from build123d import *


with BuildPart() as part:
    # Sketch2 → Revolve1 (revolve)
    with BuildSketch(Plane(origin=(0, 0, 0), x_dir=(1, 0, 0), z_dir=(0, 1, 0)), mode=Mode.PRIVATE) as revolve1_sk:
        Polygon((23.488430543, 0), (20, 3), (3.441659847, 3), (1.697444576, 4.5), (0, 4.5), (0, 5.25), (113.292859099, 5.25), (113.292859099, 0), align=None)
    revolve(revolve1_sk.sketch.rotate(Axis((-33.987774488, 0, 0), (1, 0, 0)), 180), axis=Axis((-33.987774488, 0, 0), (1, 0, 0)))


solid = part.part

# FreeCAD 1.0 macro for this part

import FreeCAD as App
import Part
import Sketcher
from FreeCAD import Vector

doc = App.newDocument("Part")
body = doc.addObject("PartDesign::Body", "Body")

# Sketch on XZ plane
sketch1 = body.newObject("Sketcher::SketchObject", "Sketch")
sketch1.AttachmentSupport = (doc.getObject("XZ_Plane"), [""])
sketch1.MapMode = "FlatFace"
sketch1.addGeometry(Part.LineSegment(Vector(20, -3, 0), Vector(23.488431, 0, 0)), False)
sketch1.addGeometry(Part.LineSegment(Vector(23.488431, 0, 0), Vector(113.292859, 0, 0)), False)
sketch1.addGeometry(Part.LineSegment(Vector(113.292859, 0, 0), Vector(113.292859, -5.25, 0)), False)
sketch1.addGeometry(Part.LineSegment(Vector(113.292859, -5.25, 0), Vector(0, -5.25, 0)), False)
sketch1.addGeometry(Part.LineSegment(Vector(0, -5.25, 0), Vector(0, -4.5, 0)), False)
sketch1.addGeometry(Part.LineSegment(Vector(0, -4.5, 0), Vector(1.697445, -4.5, 0)), False)
sketch1.addGeometry(Part.LineSegment(Vector(1.697445, -4.5, 0), Vector(3.44166, -3, 0)), False)
sketch1.addGeometry(Part.LineSegment(Vector(3.44166, -3, 0), Vector(20, -3, 0)), False)
sketch1.addConstraint(Sketcher.Constraint("Coincident", 0, 2, 1, 1))
sketch1.addConstraint(Sketcher.Constraint("Coincident", 1, 2, 2, 1))
sketch1.addConstraint(Sketcher.Constraint("Coincident", 2, 2, 3, 1))
sketch1.addConstraint(Sketcher.Constraint("Coincident", 3, 2, 4, 1))
sketch1.addConstraint(Sketcher.Constraint("Coincident", 4, 2, 5, 1))
sketch1.addConstraint(Sketcher.Constraint("Coincident", 5, 2, 6, 1))
sketch1.addConstraint(Sketcher.Constraint("Coincident", 6, 2, 7, 1))
sketch1.addConstraint(Sketcher.Constraint("Coincident", 7, 2, 0, 1))
sketch1.addConstraint(Sketcher.Constraint("Horizontal", 1))
sketch1.addConstraint(Sketcher.Constraint("Vertical", 2))
sketch1.addConstraint(Sketcher.Constraint("Horizontal", 3))
sketch1.addConstraint(Sketcher.Constraint("Vertical", 4))
sketch1.addConstraint(Sketcher.Constraint("Horizontal", 5))
sketch1.addConstraint(Sketcher.Constraint("Horizontal", 7))
sketch1.addConstraint(Sketcher.Constraint("PointOnObject", 0, 2, -1))
sketch1.addConstraint(Sketcher.Constraint("PointOnObject", 3, 2, -2))
sketch1.addConstraint(Sketcher.Constraint("Parallel", 0, 6))
sketch1.addConstraint(Sketcher.Constraint("DistanceY", 6, 2, -1, 1, 3.0))
sketch1.addConstraint(Sketcher.Constraint("DistanceX", -1, 1, 7, 2, 20.0))
sketch1.addConstraint(Sketcher.Constraint("DistanceY", 2, 2, 2, 1, 5.25))
sketch1.addConstraint(Sketcher.Constraint("DistanceY", 4, 1, 4, 2, 0.75))
sketch1.addConstraint(Sketcher.Constraint("DistanceX", 1, 1, 1, 2, 89.804429))
sketch1.addConstraint(Sketcher.Constraint("DistanceX", 3, 2, 3, 1, 113.292859))
sketch1.addConstraint(Sketcher.Constraint("DistanceX", 7, 1, 7, 2, 16.55834))
revolution = body.newObject("PartDesign::Revolution", "Revolution")
revolution.Profile = sketch1
revolution.ReferenceAxis = (sketch1, ["H_Axis"])
revolution.Angle = 360

doc.recompute()
